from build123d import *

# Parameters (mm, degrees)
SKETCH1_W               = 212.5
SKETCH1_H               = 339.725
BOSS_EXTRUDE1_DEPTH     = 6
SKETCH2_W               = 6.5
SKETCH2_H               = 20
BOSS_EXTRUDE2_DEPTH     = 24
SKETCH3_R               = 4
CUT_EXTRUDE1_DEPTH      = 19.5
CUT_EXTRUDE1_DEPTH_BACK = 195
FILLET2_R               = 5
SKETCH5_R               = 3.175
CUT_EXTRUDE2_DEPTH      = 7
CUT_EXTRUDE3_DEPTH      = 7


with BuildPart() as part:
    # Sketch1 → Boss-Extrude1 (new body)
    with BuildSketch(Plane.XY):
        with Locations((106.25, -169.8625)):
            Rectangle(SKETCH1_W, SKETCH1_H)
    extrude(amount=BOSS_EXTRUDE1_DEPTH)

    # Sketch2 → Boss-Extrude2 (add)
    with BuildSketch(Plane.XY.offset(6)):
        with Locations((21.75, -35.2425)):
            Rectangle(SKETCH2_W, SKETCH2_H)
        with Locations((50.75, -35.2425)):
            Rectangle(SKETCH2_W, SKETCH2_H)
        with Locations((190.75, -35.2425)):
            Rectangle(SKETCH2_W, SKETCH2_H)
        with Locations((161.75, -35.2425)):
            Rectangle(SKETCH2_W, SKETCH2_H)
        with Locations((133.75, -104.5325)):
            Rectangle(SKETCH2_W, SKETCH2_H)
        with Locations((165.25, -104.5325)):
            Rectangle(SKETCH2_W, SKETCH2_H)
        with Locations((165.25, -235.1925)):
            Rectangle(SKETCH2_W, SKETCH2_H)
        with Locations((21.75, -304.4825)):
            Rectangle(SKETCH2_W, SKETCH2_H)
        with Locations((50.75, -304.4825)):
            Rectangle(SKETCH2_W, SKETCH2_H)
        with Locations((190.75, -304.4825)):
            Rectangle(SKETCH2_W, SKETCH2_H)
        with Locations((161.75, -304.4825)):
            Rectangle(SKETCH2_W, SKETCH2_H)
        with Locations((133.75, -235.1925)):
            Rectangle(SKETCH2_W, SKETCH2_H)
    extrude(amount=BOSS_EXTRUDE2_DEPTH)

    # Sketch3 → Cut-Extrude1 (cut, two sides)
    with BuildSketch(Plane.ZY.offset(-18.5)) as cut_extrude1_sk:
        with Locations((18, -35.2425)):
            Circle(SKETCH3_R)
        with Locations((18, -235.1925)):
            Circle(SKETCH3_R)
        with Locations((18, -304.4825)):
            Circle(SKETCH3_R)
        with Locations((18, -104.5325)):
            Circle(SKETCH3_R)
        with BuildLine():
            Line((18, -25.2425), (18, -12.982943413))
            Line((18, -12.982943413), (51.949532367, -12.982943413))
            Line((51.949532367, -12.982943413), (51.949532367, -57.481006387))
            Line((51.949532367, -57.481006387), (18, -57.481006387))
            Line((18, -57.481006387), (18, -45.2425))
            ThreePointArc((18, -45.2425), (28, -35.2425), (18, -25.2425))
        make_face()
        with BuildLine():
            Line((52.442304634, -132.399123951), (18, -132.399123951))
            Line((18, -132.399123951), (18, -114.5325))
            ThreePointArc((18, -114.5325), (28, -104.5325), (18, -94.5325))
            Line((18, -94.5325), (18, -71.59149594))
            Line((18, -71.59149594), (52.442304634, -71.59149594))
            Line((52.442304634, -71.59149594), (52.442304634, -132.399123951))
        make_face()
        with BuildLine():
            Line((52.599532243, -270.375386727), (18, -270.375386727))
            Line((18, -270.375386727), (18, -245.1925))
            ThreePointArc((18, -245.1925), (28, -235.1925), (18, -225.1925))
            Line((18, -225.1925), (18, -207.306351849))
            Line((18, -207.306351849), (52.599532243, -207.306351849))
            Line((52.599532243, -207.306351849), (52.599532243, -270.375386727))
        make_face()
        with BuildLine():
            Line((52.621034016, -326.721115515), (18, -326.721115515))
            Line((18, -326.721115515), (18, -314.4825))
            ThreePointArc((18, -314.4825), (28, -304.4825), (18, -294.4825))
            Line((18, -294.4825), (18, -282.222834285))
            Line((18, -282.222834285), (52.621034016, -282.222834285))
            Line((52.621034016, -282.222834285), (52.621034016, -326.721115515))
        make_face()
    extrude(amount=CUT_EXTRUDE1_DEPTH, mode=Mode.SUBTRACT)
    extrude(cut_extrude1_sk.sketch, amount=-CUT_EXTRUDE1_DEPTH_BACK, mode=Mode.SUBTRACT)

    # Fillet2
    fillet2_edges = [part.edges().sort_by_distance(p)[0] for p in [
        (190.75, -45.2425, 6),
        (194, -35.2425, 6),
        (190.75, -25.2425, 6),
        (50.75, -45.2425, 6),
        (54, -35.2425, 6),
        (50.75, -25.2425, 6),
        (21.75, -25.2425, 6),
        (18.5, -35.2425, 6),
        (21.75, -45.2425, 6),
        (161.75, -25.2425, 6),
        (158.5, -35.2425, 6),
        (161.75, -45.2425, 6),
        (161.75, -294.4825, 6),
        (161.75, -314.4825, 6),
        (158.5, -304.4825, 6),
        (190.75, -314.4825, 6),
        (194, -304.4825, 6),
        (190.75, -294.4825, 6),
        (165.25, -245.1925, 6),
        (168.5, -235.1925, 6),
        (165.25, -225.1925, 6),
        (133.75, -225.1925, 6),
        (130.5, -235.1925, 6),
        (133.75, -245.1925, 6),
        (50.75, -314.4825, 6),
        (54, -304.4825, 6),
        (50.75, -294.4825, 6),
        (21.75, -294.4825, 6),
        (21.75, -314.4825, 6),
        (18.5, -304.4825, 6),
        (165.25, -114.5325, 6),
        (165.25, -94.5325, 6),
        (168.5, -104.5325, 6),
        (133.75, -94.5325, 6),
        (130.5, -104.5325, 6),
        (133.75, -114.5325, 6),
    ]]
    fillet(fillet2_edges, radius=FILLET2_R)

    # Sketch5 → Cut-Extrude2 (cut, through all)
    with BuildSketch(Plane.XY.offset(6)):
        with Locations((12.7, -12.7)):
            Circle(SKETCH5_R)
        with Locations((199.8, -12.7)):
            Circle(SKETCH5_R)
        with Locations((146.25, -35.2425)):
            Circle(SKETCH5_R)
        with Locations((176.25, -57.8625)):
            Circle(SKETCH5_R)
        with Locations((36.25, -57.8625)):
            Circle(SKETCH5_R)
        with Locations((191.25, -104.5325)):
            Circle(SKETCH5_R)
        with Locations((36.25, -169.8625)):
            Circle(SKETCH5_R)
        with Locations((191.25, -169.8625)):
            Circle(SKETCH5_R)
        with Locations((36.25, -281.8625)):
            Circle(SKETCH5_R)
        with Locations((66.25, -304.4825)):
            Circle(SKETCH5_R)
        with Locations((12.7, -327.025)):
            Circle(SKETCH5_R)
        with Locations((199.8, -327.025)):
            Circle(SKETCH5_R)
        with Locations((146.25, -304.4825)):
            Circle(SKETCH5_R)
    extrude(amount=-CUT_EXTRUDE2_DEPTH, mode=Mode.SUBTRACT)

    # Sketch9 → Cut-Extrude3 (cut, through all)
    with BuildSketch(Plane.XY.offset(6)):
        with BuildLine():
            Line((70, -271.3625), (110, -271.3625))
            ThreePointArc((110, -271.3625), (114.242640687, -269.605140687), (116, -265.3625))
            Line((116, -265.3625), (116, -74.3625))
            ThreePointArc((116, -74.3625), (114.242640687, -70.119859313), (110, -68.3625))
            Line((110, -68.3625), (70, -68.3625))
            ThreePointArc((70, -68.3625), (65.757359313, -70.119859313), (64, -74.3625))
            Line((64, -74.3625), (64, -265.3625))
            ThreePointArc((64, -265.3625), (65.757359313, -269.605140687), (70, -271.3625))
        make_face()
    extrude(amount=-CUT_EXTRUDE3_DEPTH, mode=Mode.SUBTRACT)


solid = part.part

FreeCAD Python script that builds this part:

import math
import FreeCAD as App
import Part
import Sketcher
from FreeCAD import Vector
Q = App.Units.Quantity


def edges_at(feature, points):
    """Names of the edges that pass closest to the given points."""
    edges = feature.Shape.Edges
    near = lambda p: min(range(len(edges)), key=lambda i: edges[i].distToShape(Part.Vertex(*p))[0])
    return sorted({f"Edge{near(p) + 1}" for p in points})

doc = App.newDocument("Part")
body = doc.addObject("PartDesign::Body", "Body")

# Sketch on XY plane
sketch1 = body.newObject("Sketcher::SketchObject", "Sketch")
sketch1.AttachmentSupport = (doc.getObject("XY_Plane"), [""])
sketch1.MapMode = "FlatFace"
sketch1.addGeometry(Part.LineSegment(Vector(0, 0, 0), Vector(0, -340, 0)), False)
sketch1.addGeometry(Part.LineSegment(Vector(0, -340, 0), Vector(212, -340, 0)), False)
sketch1.addGeometry(Part.LineSegment(Vector(212, -340, 0), Vector(212, 0, 0)), False)
sketch1.addGeometry(Part.LineSegment(Vector(212, 0, 0), Vector(0, 0, 0)), False)
sketch1.addConstraint(Sketcher.Constraint("Coincident", 0, 2, 1, 1))
sketch1.addConstraint(Sketcher.Constraint("Coincident", 1, 2, 2, 1))
sketch1.addConstraint(Sketcher.Constraint("Coincident", 2, 2, 3, 1))
sketch1.addConstraint(Sketcher.Constraint("Coincident", 3, 2, 0, 1))
sketch1.addConstraint(Sketcher.Constraint("Vertical", 0))
sketch1.addConstraint(Sketcher.Constraint("Horizontal", 1))
sketch1.addConstraint(Sketcher.Constraint("Vertical", 2))
sketch1.addConstraint(Sketcher.Constraint("Horizontal", 3))
sketch1.addConstraint(Sketcher.Constraint("Coincident", 3, 2, -1, 1))
sketch1.addConstraint(Sketcher.Constraint("DistanceX", 1, 1, 1, 2, Q("212.5 mm")))
sketch1.addConstraint(Sketcher.Constraint("DistanceY", 0, 2, 0, 1, Q("339.725 mm")))
pad1 = body.newObject("PartDesign::Pad", "Pad")
pad1.Profile = sketch1
pad1.Length = 6

# Sketch on XY plane
sketch2 = body.newObject("Sketcher::SketchObject", "Sketch001")
sketch2.AttachmentSupport = (doc.getObject("XY_Plane"), [""])
sketch2.MapMode = "FlatFace"
sketch2.AttachmentOffset = App.Placement(Vector(0, 0, 6), App.Rotation())
sketch2.addGeometry(Part.LineSegment(Vector(18, -25, 0), Vector(18, -45, 0)), False)
sketch2.addGeometry(Part.LineSegment(Vector(18, -45, 0), Vector(25, -45, 0)), False)
sketch2.addGeometry(Part.LineSegment(Vector(25, -45, 0), Vector(25, -25, 0)), False)
sketch2.addGeometry(Part.LineSegment(Vector(25, -25, 0), Vector(18, -25, 0)), False)
sketch2.addGeometry(Part.LineSegment(Vector(48, -25, 0), Vector(48, -45, 0)), False)
sketch2.addGeometry(Part.LineSegment(Vector(48, -45, 0), Vector(54, -45, 0)), False)
sketch2.addGeometry(Part.LineSegment(Vector(54, -45, 0), Vector(54, -25, 0)), False)
sketch2.addGeometry(Part.LineSegment(Vector(54, -25, 0), Vector(48, -25, 0)), False)
sketch2.addGeometry(Part.LineSegment(Vector(188, -25, 0), Vector(188, -45, 0)), False)
sketch2.addGeometry(Part.LineSegment(Vector(188, -45, 0), Vector(194, -45, 0)), False)
sketch2.addGeometry(Part.LineSegment(Vector(194, -45, 0), Vector(194, -25, 0)), False)
sketch2.addGeometry(Part.LineSegment(Vector(194, -25, 0), Vector(188, -25, 0)), False)
sketch2.addGeometry(Part.LineSegment(Vector(158, -25, 0), Vector(158, -45, 0)), False)
sketch2.addGeometry(Part.LineSegment(Vector(158, -45, 0), Vector(165, -45, 0)), False)
sketch2.addGeometry(Part.LineSegment(Vector(165, -45, 0), Vector(165, -25, 0)), False)
sketch2.addGeometry(Part.LineSegment(Vector(165, -25, 0), Vector(158, -25, 0)), False)
sketch2.addGeometry(Part.LineSegment(Vector(130, -95, 0), Vector(130, -115, 0)), False)
sketch2.addGeometry(Part.LineSegment(Vector(130, -115, 0), Vector(137, -115, 0)), False)
sketch2.addGeometry(Part.LineSegment(Vector(137, -115, 0), Vector(137, -95, 0)), False)
sketch2.addGeometry(Part.LineSegment(Vector(137, -95, 0), Vector(130, -95, 0)), False)
sketch2.addGeometry(Part.LineSegment(Vector(162, -95, 0), Vector(162, -115, 0)), False)
sketch2.addGeometry(Part.LineSegment(Vector(162, -115, 0), Vector(168, -115, 0)), False)
sketch2.addGeometry(Part.LineSegment(Vector(168, -115, 0), Vector(168, -95, 0)), False)
sketch2.addGeometry(Part.LineSegment(Vector(168, -95, 0), Vector(162, -95, 0)), False)
sketch2.addGeometry(Part.LineSegment(Vector(162, -225, 0), Vector(162, -245, 0)), False)
sketch2.addGeometry(Part.LineSegment(Vector(162, -245, 0), Vector(168, -245, 0)), False)
sketch2.addGeometry(Part.LineSegment(Vector(168, -245, 0), Vector(168, -225, 0)), False)
sketch2.addGeometry(Part.LineSegment(Vector(168, -225, 0), Vector(162, -225, 0)), False)
sketch2.addGeometry(Part.LineSegment(Vector(18, -294, 0), Vector(18, -314, 0)), False)
sketch2.addGeometry(Part.LineSegment(Vector(18, -314, 0), Vector(25, -314, 0)), False)
sketch2.addGeometry(Part.LineSegment(Vector(25, -314, 0), Vector(25, -294, 0)), False)
sketch2.addGeometry(Part.LineSegment(Vector(25, -294, 0), Vector(18, -294, 0)), False)
sketch2.addGeometry(Part.LineSegment(Vector(48, -294, 0), Vector(48, -314, 0)), False)
sketch2.addGeometry(Part.LineSegment(Vector(48, -314, 0), Vector(54, -314, 0)), False)
sketch2.addGeometry(Part.LineSegment(Vector(54, -314, 0), Vector(54, -294, 0)), False)
sketch2.addGeometry(Part.LineSegment(Vector(54, -294, 0), Vector(48, -294, 0)), False)
sketch2.addGeometry(Part.LineSegment(Vector(188, -294, 0), Vector(188, -314, 0)), False)
sketch2.addGeometry(Part.LineSegment(Vector(188, -314, 0), Vector(194, -314, 0)), False)
sketch2.addGeometry(Part.LineSegment(Vector(194, -314, 0), Vector(194, -294, 0)), False)
sketch2.addGeometry(Part.LineSegment(Vector(194, -294, 0), Vector(188, -294, 0)), False)
sketch2.addGeometry(Part.LineSegment(Vector(158, -294, 0), Vector(158, -314, 0)), False)
sketch2.addGeometry(Part.LineSegment(Vector(158, -314, 0), Vector(165, -314, 0)), False)
sketch2.addGeometry(Part.LineSegment(Vector(165, -314, 0), Vector(165, -294, 0)), False)
sketch2.addGeometry(Part.LineSegment(Vector(165, -294, 0), Vector(158, -294, 0)), False)
sketch2.addGeometry(Part.LineSegment(Vector(130, -225, 0), Vector(130, -245, 0)), False)
sketch2.addGeometry(Part.LineSegment(Vector(130, -245, 0), Vector(137, -245, 0)), False)
sketch2.addGeometry(Part.LineSegment(Vector(137, -245, 0), Vector(137, -225, 0)), False)
sketch2.addGeometry(Part.LineSegment(Vector(137, -225, 0), Vector(130, -225, 0)), False)
sketch2.addConstraint(Sketcher.Constraint("Coincident", 0, 2, 1, 1))
sketch2.addConstraint(Sketcher.Constraint("Coincident", 1, 2, 2, 1))
sketch2.addConstraint(Sketcher.Constraint("Coincident", 2, 2, 3, 1))
sketch2.addConstraint(Sketcher.Constraint("Coincident", 3, 2, 0, 1))
sketch2.addConstraint(Sketcher.Constraint("Coincident", 4, 2, 5, 1))
sketch2.addConstraint(Sketcher.Constraint("Coincident", 5, 2, 6, 1))
sketch2.addConstraint(Sketcher.Constraint("Coincident", 6, 2, 7, 1))
sketch2.addConstraint(Sketcher.Constraint("Coincident", 7, 2, 4, 1))
sketch2.addConstraint(Sketcher.Constraint("Coincident", 8, 2, 9, 1))
sketch2.addConstraint(Sketcher.Constraint("Coincident", 9, 2, 10, 1))
sketch2.addConstraint(Sketcher.Constraint("Coincident", 10, 2, 11, 1))
sketch2.addConstraint(Sketcher.Constraint("Coincident", 11, 2, 8, 1))
sketch2.addConstraint(Sketcher.Constraint("Coincident", 12, 2, 13, 1))
sketch2.addConstraint(Sketcher.Constraint("Coincident", 13, 2, 14, 1))
sketch2.addConstraint(Sketcher.Constraint("Coincident", 14, 2, 15, 1))
sketch2.addConstraint(Sketcher.Constraint("Coincident", 15, 2, 12, 1))
sketch2.addConstraint(Sketcher.Constraint("Coincident", 16, 2, 17, 1))
sketch2.addConstraint(Sketcher.Constraint("Coincident", 17, 2, 18, 1))
sketch2.addConstraint(Sketcher.Constraint("Coincident", 18, 2, 19, 1))
sketch2.addConstraint(Sketcher.Constraint("Coincident", 19, 2, 16, 1))
sketch2.addConstraint(Sketcher.Constraint("Coincident", 20, 2, 21, 1))
sketch2.addConstraint(Sketcher.Constraint("Coincident", 21, 2, 22, 1))
sketch2.addConstraint(Sketcher.Constraint("Coincident", 22, 2, 23, 1))
sketch2.addConstraint(Sketcher.Constraint("Coincident", 23, 2, 20, 1))
sketch2.addConstraint(Sketcher.Constraint("Coincident", 24, 2, 25, 1))
sketch2.addConstraint(Sketcher.Constraint("Coincident", 25, 2, 26, 1))
sketch2.addConstraint(Sketcher.Constraint("Coincident", 26, 2, 27, 1))
sketch2.addConstraint(Sketcher.Constraint("Coincident", 27, 2, 24, 1))
sketch2.addConstraint(Sketcher.Constraint("Coincident", 28, 2, 29, 1))
sketch2.addConstraint(Sketcher.Constraint("Coincident", 29, 2, 30, 1))
sketch2.addConstraint(Sketcher.Constraint("Coincident", 30, 2, 31, 1))
sketch2.addConstraint(Sketcher.Constraint("Coincident", 31, 2, 28, 1))
sketch2.addConstraint(Sketcher.Constraint("Coincident", 32, 2, 33, 1))
sketch2.addConstraint(Sketcher.Constraint("Coincident", 33, 2, 34, 1))
sketch2.addConstraint(Sketcher.Constraint("Coincident", 34, 2, 35, 1))
sketch2.addConstraint(Sketcher.Constraint("Coincident", 35, 2, 32, 1))
sketch2.addConstraint(Sketcher.Constraint("Coincident", 36, 2, 37, 1))
sketch2.addConstraint(Sketcher.Constraint("Coincident", 37, 2, 38, 1))
sketch2.addConstraint(Sketcher.Constraint("Coincident", 38, 2, 39, 1))
sketch2.addConstraint(Sketcher.Constraint("Coincident", 39, 2, 36, 1))
sketch2.addConstraint(Sketcher.Constraint("Coincident", 40, 2, 41, 1))
sketch2.addConstraint(Sketcher.Constraint("Coincident", 41, 2, 42, 1))
sketch2.addConstraint(Sketcher.Constraint("Coincident", 42, 2, 43, 1))
sketch2.addConstraint(Sketcher.Constraint("Coincident", 43, 2, 40, 1))
sketch2.addConstraint(Sketcher.Constraint("Coincident", 44, 2, 45, 1))
sketch2.addConstraint(Sketcher.Constraint("Coincident", 45, 2, 46, 1))
sketch2.addConstraint(Sketcher.Constraint("Coincident", 46, 2, 47, 1))
sketch2.addConstraint(Sketcher.Constraint("Coincident", 47, 2, 44, 1))
sketch2.addConstraint(Sketcher.Constraint("Vertical", 0))
sketch2.addConstraint(Sketcher.Constraint("Horizontal", 1))
sketch2.addConstraint(Sketcher.Constraint("Vertical", 2))
sketch2.addConstraint(Sketcher.Constraint("Horizontal", 3))
sketch2.addConstraint(Sketcher.Constraint("Vertical", 4))
sketch2.addConstraint(Sketcher.Constraint("Horizontal", 5))
sketch2.addConstraint(Sketcher.Constraint("Vertical", 6))
sketch2.addConstraint(Sketcher.Constraint("Horizontal", 7))
sketch2.addConstraint(Sketcher.Constraint("Vertical", 8))
sketch2.addConstraint(Sketcher.Constraint("Horizontal", 9))
sketch2.addConstraint(Sketcher.Constraint("Vertical", 10))
sketch2.addConstraint(Sketcher.Constraint("Horizontal", 11))
sketch2.addConstraint(Sketcher.Constraint("Vertical", 12))
sketch2.addConstraint(Sketcher.Constraint("Horizontal", 13))
sketch2.addConstraint(Sketcher.Constraint("Vertical", 14))
sketch2.addConstraint(Sketcher.Constraint("Horizontal", 15))
sketch2.addConstraint(Sketcher.Constraint("Vertical", 16))
sketch2.addConstraint(Sketcher.Constraint("Horizontal", 17))
sketch2.addConstraint(Sketcher.Constraint("Vertical", 18))
sketch2.addConstraint(Sketcher.Constraint("Horizontal", 19))
sketch2.addConstraint(Sketcher.Constraint("Vertical", 20))
sketch2.addConstraint(Sketcher.Constraint("Horizontal", 21))
sketch2.addConstraint(Sketcher.Constraint("Vertical", 22))
sketch2.addConstraint(Sketcher.Constraint("Horizontal", 23))
sketch2.addConstraint(Sketcher.Constraint("Vertical", 24))
sketch2.addConstraint(Sketcher.Constraint("Horizontal", 25))
sketch2.addConstraint(Sketcher.Constraint("Vertical", 26))
sketch2.addConstraint(Sketcher.Constraint("Horizontal", 27))
sketch2.addConstraint(Sketcher.Constraint("Vertical", 28))
sketch2.addConstraint(Sketcher.Constraint("Horizontal", 29))
sketch2.addConstraint(Sketcher.Constraint("Vertical", 30))
sketch2.addConstraint(Sketcher.Constraint("Horizontal", 31))
sketch2.addConstraint(Sketcher.Constraint("Vertical", 32))
sketch2.addConstraint(Sketcher.Constraint("Horizontal", 33))
sketch2.addConstraint(Sketcher.Constraint("Vertical", 34))
sketch2.addConstraint(Sketcher.Constraint("Horizontal", 35))
sketch2.addConstraint(Sketcher.Constraint("Vertical", 36))
sketch2.addConstraint(Sketcher.Constraint("Horizontal", 37))
sketch2.addConstraint(Sketcher.Constraint("Vertical", 38))
sketch2.addConstraint(Sketcher.Constraint("Horizontal", 39))
sketch2.addConstraint(Sketcher.Constraint("Vertical", 40))
sketch2.addConstraint(Sketcher.Constraint("Horizontal", 41))
sketch2.addConstraint(Sketcher.Constraint("Vertical", 42))
sketch2.addConstraint(Sketcher.Constraint("Horizontal", 43))
sketch2.addConstraint(Sketcher.Constraint("Vertical", 44))
sketch2.addConstraint(Sketcher.Constraint("Horizontal", 45))
sketch2.addConstraint(Sketcher.Constraint("Vertical", 46))
sketch2.addConstraint(Sketcher.Constraint("Horizontal", 47))
sketch2.addConstraint(Sketcher.Constraint("Horizontal", 1, 2, 4, 2))
sketch2.addConstraint(Sketcher.Constraint("Horizontal", 3, 2, 6, 2))
sketch2.addConstraint(Sketcher.Constraint("Horizontal", 5, 2, 8, 2))
sketch2.addConstraint(Sketcher.Constraint("Horizontal", 7, 2, 10, 2))
sketch2.addConstraint(Sketcher.Constraint("Horizontal", 9, 2, 12, 2))
sketch2.addConstraint(Sketcher.Constraint("Horizontal", 11, 2, 14, 2))
sketch2.addConstraint(Sketcher.Constraint("Horizontal", 17, 2, 20, 2))
sketch2.addConstraint(Sketcher.Constraint("Horizontal", 19, 2, 22, 2))
sketch2.addConstraint(Sketcher.Constraint("Horizontal", 29, 2, 32, 2))
sketch2.addConstraint(Sketcher.Constraint("Horizontal", 31, 2, 34, 2))
sketch2.addConstraint(Sketcher.Constraint("Horizontal", 33, 2, 36, 2))
sketch2.addConstraint(Sketcher.Constraint("Horizontal", 35, 2, 38, 2))
sketch2.addConstraint(Sketcher.Constraint("Horizontal", 37, 2, 40, 2))
sketch2.addConstraint(Sketcher.Constraint("Horizontal", 39, 2, 42, 2))
sketch2.addConstraint(Sketcher.Constraint("Horizontal", 25, 2, 44, 2))
sketch2.addConstraint(Sketcher.Constraint("Horizontal", 27, 2, 46, 2))
sketch2.addConstraint(Sketcher.Constraint("Vertical", 23, 2, 24, 2))
sketch2.addConstraint(Sketcher.Constraint("Vertical", 22, 2, 25, 2))
sketch2.addConstraint(Sketcher.Constraint("Vertical", 3, 2, 28, 2))
sketch2.addConstraint(Sketcher.Constraint("Vertical", 2, 2, 29, 2))
sketch2.addConstraint(Sketcher.Constraint("Vertical", 7, 2, 32, 2))
sketch2.addConstraint(Sketcher.Constraint("Vertical", 6, 2, 33, 2))
sketch2.addConstraint(Sketcher.Constraint("Vertical", 11, 2, 36, 2))
sketch2.addConstraint(Sketcher.Constraint("Vertical", 10, 2, 37, 2))
sketch2.addConstraint(Sketcher.Constraint("Vertical", 15, 2, 40, 2))
sketch2.addConstraint(Sketcher.Constraint("Vertical", 14, 2, 41, 2))
sketch2.addConstraint(Sketcher.Constraint("Vertical", 19, 2, 44, 2))
sketch2.addConstraint(Sketcher.Constraint("Vertical", 18, 2, 45, 2))
sketch2.addConstraint(Sketcher.Constraint("Equal", 3, 5))
sketch2.addConstraint(Sketcher.Constraint("Equal", 7, 9))
sketch2.addConstraint(Sketcher.Constraint("Equal", 11, 13))
sketch2.addConstraint(Sketcher.Constraint("Equal", 15, 17))
sketch2.addConstraint(Sketcher.Constraint("Equal", 19, 21))
sketch2.addConstraint(Sketcher.Constraint("Equal", 14, 16))
sketch2.addConstraint(Sketcher.Constraint("Equal", 22, 24))
sketch2.addConstraint(Sketcher.Constraint("Equal", 26, 28))
sketch2.addConstraint(Sketcher.Constraint("DistanceY", 0, 2, 0, 1, Q("20 mm")))
sketch2.addConstraint(Sketcher.Constraint("DistanceX", 1, 1, 1, 2, Q("6.5 mm")))
sketch2.addConstraint(Sketcher.Constraint("DistanceX", -1, 1, 1, 2, Q("25 mm")))
sketch2.addConstraint(Sketcher.Constraint("DistanceX", -1, 1, 5, 2, Q("54 mm")))
sketch2.addConstraint(Sketcher.Constraint("DistanceX", -1, 1, 9, 2, Q("194 mm")))
sketch2.addConstraint(Sketcher.Constraint("DistanceX", -1, 1, 13, 2, Q("165 mm")))
sketch2.addConstraint(Sketcher.Constraint("DistanceX", -1, 1, 17, 2, Q("137 mm")))
sketch2.addConstraint(Sketcher.Constraint("DistanceX", -1, 1, 20, 2, Q("162 mm")))
sketch2.addConstraint(Sketcher.Constraint("DistanceY", 16, 2, 12, 2, Q("69.29 mm")))
sketch2.addConstraint(Sketcher.Constraint("DistanceY", 24, 2, 20, 2, Q("130.66 mm")))
sketch2.addConstraint(Sketcher.Constraint("DistanceY", 28, 2, 24, 2, Q("69.29 mm")))
sketch2.addConstraint(Sketcher.Constraint("DistanceY", 0, 2, -1, 1, Q("45.2425 mm")))
pad2 = body.newObject("PartDesign::Pad", "Pad001")
pad2.Profile = sketch2
pad2.Length = 24

# Sketch on YZ plane
sketch3 = body.newObject("Sketcher::SketchObject", "Sketch002")
sketch3.AttachmentSupport = (doc.getObject("YZ_Plane"), [""])
sketch3.MapMode = "FlatFace"
sketch3.AttachmentOffset = App.Placement(Vector(0, 0, 18.5), App.Rotation())
sketch3.addGeometry(Part.Circle(Vector(-35.2, 18, 0), Vector(0, 0, 1), 4), False)
sketch3.addGeometry(Part.Circle(Vector(-235.2, 18, 0), Vector(0, 0, 1), 4), False)
sketch3.addGeometry(Part.Circle(Vector(-304.5, 18, 0), Vector(0, 0, 1), 4), False)
sketch3.addGeometry(Part.Circle(Vector(-104.5, 18, 0), Vector(0, 0, 1), 4), False)
sketch3.addGeometry(Part.LineSegment(Vector(-13, 18, 0), Vector(-25.2, 18, 0)), False)
sketch3.addGeometry(Part.ArcOfCircle(Part.Circle(Vector(-35.2, 18, 0), Vector(0, 0, 1), 10), math.radians(0), math.radians(180)), False)
sketch3.addGeometry(Part.LineSegment(Vector(-45.2, 18, 0), Vector(-57.5, 18, 0)), False)
sketch3.addGeometry(Part.LineSegment(Vector(-57.5, 18, 0), Vector(-57.5, 51.9, 0)), False)
sketch3.addGeometry(Part.LineSegment(Vector(-57.5, 51.9, 0), Vector(-13, 51.9, 0)), False)
sketch3.addGeometry(Part.LineSegment(Vector(-13, 51.9, 0), Vector(-13, 18, 0)), False)
sketch3.addGeometry(Part.LineSegment(Vector(-132.4, 18, 0), Vector(-132.4, 52.4, 0)), False)
sketch3.addGeometry(Part.LineSegment(Vector(-132.4, 52.4, 0), Vector(-71.6, 52.4, 0)), False)
sketch3.addGeometry(Part.LineSegment(Vector(-71.6, 52.4, 0), Vector(-71.6, 18, 0)), False)
sketch3.addGeometry(Part.LineSegment(Vector(-71.6, 18, 0), Vector(-94.5, 18, 0)), False)
sketch3.addGeometry(Part.ArcOfCircle(Part.Circle(Vector(-104.5, 18, 0), Vector(0, 0, 1), 10), math.radians(0), math.radians(180)), False)
sketch3.addGeometry(Part.LineSegment(Vector(-114.5, 18, 0), Vector(-132.4, 18, 0)), False)
sketch3.addGeometry(Part.LineSegment(Vector(-270.4, 18, 0), Vector(-270.4, 52.6, 0)), False)
sketch3.addGeometry(Part.LineSegment(Vector(-270.4, 52.6, 0), Vector(-207.3, 52.6, 0)), False)
sketch3.addGeometry(Part.LineSegment(Vector(-207.3, 52.6, 0), Vector(-207.3, 18, 0)), False)
sketch3.addGeometry(Part.LineSegment(Vector(-207.3, 18, 0), Vector(-225.2, 18, 0)), False)
sketch3.addGeometry(Part.ArcOfCircle(Part.Circle(Vector(-235.2, 18, 0), Vector(0, 0, 1), 10), math.radians(0), math.radians(180)), False)
sketch3.addGeometry(Part.LineSegment(Vector(-245.2, 18, 0), Vector(-270.4, 18, 0)), False)
sketch3.addGeometry(Part.LineSegment(Vector(-326.7, 18, 0), Vector(-326.7, 52.6, 0)), False)
sketch3.addGeometry(Part.LineSegment(Vector(-326.7, 52.6, 0), Vector(-282.2, 52.6, 0)), False)
sketch3.addGeometry(Part.LineSegment(Vector(-282.2, 52.6, 0), Vector(-282.2, 18, 0)), False)
sketch3.addGeometry(Part.LineSegment(Vector(-282.2, 18, 0), Vector(-294.5, 18, 0)), False)
sketch3.addGeometry(Part.ArcOfCircle(Part.Circle(Vector(-304.5, 18, 0), Vector(0, 0, 1), 10), math.radians(0), math.radians(180)), False)
sketch3.addGeometry(Part.LineSegment(Vector(-314.5, 18, 0), Vector(-326.7, 18, 0)), False)
sketch3.addConstraint(Sketcher.Constraint("Coincident", 4, 2, 5, 1))
sketch3.addConstraint(Sketcher.Constraint("Coincident", 5, 2, 6, 1))
sketch3.addConstraint(Sketcher.Constraint("Coincident", 6, 2, 7, 1))
sketch3.addConstraint(Sketcher.Constraint("Coincident", 7, 2, 8, 1))
sketch3.addConstraint(Sketcher.Constraint("Coincident", 8, 2, 9, 1))
sketch3.addConstraint(Sketcher.Constraint("Coincident", 9, 2, 4, 1))
sketch3.addConstraint(Sketcher.Constraint("Coincident", 10, 2, 11, 1))
sketch3.addConstraint(Sketcher.Constraint("Coincident", 11, 2, 12, 1))
sketch3.addConstraint(Sketcher.Constraint("Coincident", 12, 2, 13, 1))
sketch3.addConstraint(Sketcher.Constraint("Coincident", 13, 2, 14, 1))
sketch3.addConstraint(Sketcher.Constraint("Coincident", 14, 2, 15, 1))
sketch3.addConstraint(Sketcher.Constraint("Coincident", 15, 2, 10, 1))
sketch3.addConstraint(Sketcher.Constraint("Coincident", 16, 2, 17, 1))
sketch3.addConstraint(Sketcher.Constraint("Coincident", 17, 2, 18, 1))
sketch3.addConstraint(Sketcher.Constraint("Coincident", 18, 2, 19, 1))
sketch3.addConstraint(Sketcher.Constraint("Coincident", 19, 2, 20, 1))
sketch3.addConstraint(Sketcher.Constraint("Coincident", 20, 2, 21, 1))
sketch3.addConstraint(Sketcher.Constraint("Coincident", 21, 2, 16, 1))
sketch3.addConstraint(Sketcher.Constraint("Coincident", 22, 2, 23, 1))
sketch3.addConstraint(Sketcher.Constraint("Coincident", 23, 2, 24, 1))
sketch3.addConstraint(Sketcher.Constraint("Coincident", 24, 2, 25, 1))
sketch3.addConstraint(Sketcher.Constraint("Coincident", 25, 2, 26, 1))
sketch3.addConstraint(Sketcher.Constraint("Coincident", 26, 2, 27, 1))
sketch3.addConstraint(Sketcher.Constraint("Coincident", 27, 2, 22, 1))
sketch3.addConstraint(Sketcher.Constraint("Horizontal", 4))
sketch3.addConstraint(Sketcher.Constraint("Horizontal", 6))
sketch3.addConstraint(Sketcher.Constraint("Vertical", 7))
sketch3.addConstraint(Sketcher.Constraint("Horizontal", 8))
sketch3.addConstraint(Sketcher.Constraint("Vertical", 9))
sketch3.addConstraint(Sketcher.Constraint("Vertical", 10))
sketch3.addConstraint(Sketcher.Constraint("Horizontal", 11))
sketch3.addConstraint(Sketcher.Constraint("Vertical", 12))
sketch3.addConstraint(Sketcher.Constraint("Horizontal", 13))
sketch3.addConstraint(Sketcher.Constraint("Horizontal", 15))
sketch3.addConstraint(Sketcher.Constraint("Vertical", 16))
sketch3.addConstraint(Sketcher.Constraint("Horizontal", 17))
sketch3.addConstraint(Sketcher.Constraint("Vertical", 18))
sketch3.addConstraint(Sketcher.Constraint("Horizontal", 19))
sketch3.addConstraint(Sketcher.Constraint("Horizontal", 21))
sketch3.addConstraint(Sketcher.Constraint("Vertical", 22))
sketch3.addConstraint(Sketcher.Constraint("Horizontal", 23))
sketch3.addConstraint(Sketcher.Constraint("Vertical", 24))
sketch3.addConstraint(Sketcher.Constraint("Horizontal", 25))
sketch3.addConstraint(Sketcher.Constraint("Horizontal", 27))
sketch3.addConstraint(Sketcher.Constraint("Coincident", 5, 3, 0, 3))
sketch3.addConstraint(Sketcher.Constraint("Coincident", 14, 3, 3, 3))
sketch3.addConstraint(Sketcher.Constraint("Coincident", 20, 3, 1, 3))
sketch3.addConstraint(Sketcher.Constraint("Coincident", 26, 3, 2, 3))
sketch3.addConstraint(Sketcher.Constraint("Equal", 0, 1))
sketch3.addConstraint(Sketcher.Constraint("Equal", 1, 2))
sketch3.addConstraint(Sketcher.Constraint("Equal", 2, 3))
sketch3.addConstraint(Sketcher.Constraint("Equal", 5, 14))
sketch3.addConstraint(Sketcher.Constraint("Equal", 14, 20))
sketch3.addConstraint(Sketcher.Constraint("Equal", 20, 26))
sketch3.addConstraint(Sketcher.Constraint("Horizontal", 0, 3, 1, 3))
sketch3.addConstraint(Sketcher.Constraint("Horizontal", 1, 3, 2, 3))
sketch3.addConstraint(Sketcher.Constraint("Horizontal", 2, 3, 3, 3))
sketch3.addConstraint(Sketcher.Constraint("Horizontal", 26, 3, 4, 2))
sketch3.addConstraint(Sketcher.Constraint("Horizontal", 4, 2, 5, 2))
sketch3.addConstraint(Sketcher.Constraint("Horizontal", 9, 2, 12, 2))
sketch3.addConstraint(Sketcher.Constraint("Horizontal", 13, 2, 14, 2))
sketch3.addConstraint(Sketcher.Constraint("Horizontal", 15, 2, 18, 2))
sketch3.addConstraint(Sketcher.Constraint("Horizontal", 19, 2, 20, 2))
sketch3.addConstraint(Sketcher.Constraint("Horizontal", 21, 2, 24, 2))
sketch3.addConstraint(Sketcher.Constraint("Horizontal", 25, 2, 26, 2))
sketch3.addConstraint(Sketcher.Constraint("Diameter", 0, Q("8 mm")))
sketch3.addConstraint(Sketcher.Constraint("Radius", 5, Q("10 mm")))
sketch3.addConstraint(Sketcher.Constraint("DistanceY", -1, 1, 0, 3, Q("18 mm")))
sketch3.addConstraint(Sketcher.Constraint("DistanceX", 1, 3, 0, 3, Q("199.95 mm")))
sketch3.addConstraint(Sketcher.Constraint("DistanceX", 2, 3, 1, 3, Q("69.29 mm")))
sketch3.addConstraint(Sketcher.Constraint("DistanceX", 3, 3, 0, 3, Q("69.29 mm")))
sketch3.addConstraint(Sketcher.Constraint("DistanceX", 11, 1, 11, 2, Q("60.807628 mm")))
sketch3.addConstraint(Sketcher.Constraint("DistanceX", 19, 2, 19, 1, Q("17.886148 mm")))
sketch3.addConstraint(Sketcher.Constraint("DistanceX", 23, 1, 23, 2, Q("44.498281 mm")))
sketch3.addConstraint(Sketcher.Constraint("DistanceX", 0, 3, -1, 1, Q("35.2425 mm")))
sketch3.addConstraint(Sketcher.Constraint("DistanceY", 16, 2, 22, 2, Q("0.021502 mm")))
sketch3.addConstraint(Sketcher.Constraint("DistanceX", 4, 2, 4, 1, Q("12.259557 mm")))
sketch3.addConstraint(Sketcher.Constraint("DistanceX", 6, 2, 6, 1, Q("12.238506 mm")))
sketch3.addConstraint(Sketcher.Constraint("DistanceX", 13, 2, 13, 1, Q("22.941004 mm")))
sketch3.addConstraint(Sketcher.Constraint("DistanceX", 17, 1, 17, 2, Q("63.069035 mm")))
sketch3.addConstraint(Sketcher.Constraint("DistanceX", 25, 2, 25, 1, Q("12.259666 mm")))
sketch3.addConstraint(Sketcher.Constraint("DistanceY", 7, 1, 7, 2, Q("33.949532 mm")))
sketch3.addConstraint(Sketcher.Constraint("DistanceY", 10, 1, 10, 2, Q("34.442305 mm")))
sketch3.addConstraint(Sketcher.Constraint("DistanceY", 16, 1, 16, 2, Q("34.599532 mm")))
pocket1 = body.newObject("PartDesign::Pocket", "Pocket")
pocket1.Profile = sketch3
pocket1.Type = "ThroughAll"
pocket1.Midplane = True
doc.recompute()

fillet = body.newObject("PartDesign::Fillet", "Fillet")
fillet.Base = (pocket1, edges_at(pocket1, [
    (190.75, -45.242, 6),
    (194, -35.242, 6),
    (190.75, -25.242, 6),
    (50.75, -45.242, 6),
    (54, -35.242, 6),
    (50.75, -25.242, 6),
    (21.75, -25.242, 6),
    (18.5, -35.242, 6),
    (21.75, -45.242, 6),
    (161.75, -25.242, 6),
    (158.5, -35.242, 6),
    (161.75, -45.242, 6),
    (161.75, -294.483, 6),
    (161.75, -314.483, 6),
    (158.5, -304.483, 6),
    (190.75, -314.483, 6),
    (194, -304.483, 6),
    (190.75, -294.483, 6),
    (165.25, -245.192, 6),
    (168.5, -235.192, 6),
    (165.25, -225.192, 6),
    (133.75, -225.192, 6),
    (130.5, -235.192, 6),
    (133.75, -245.192, 6),
    (50.75, -314.483, 6),
    (54, -304.483, 6),
    (50.75, -294.483, 6),
    (21.75, -294.483, 6),
    (21.75, -314.483, 6),
    (18.5, -304.483, 6),
    (165.25, -114.532, 6),
    (165.25, -94.532, 6),
    (168.5, -104.532, 6),
    (133.75, -94.532, 6),
    (130.5, -104.532, 6),
    (133.75, -114.532, 6),
]))
fillet.Radius = 5

# Sketch on XY plane
sketch4 = body.newObject("Sketcher::SketchObject", "Sketch003")
sketch4.AttachmentSupport = (doc.getObject("XY_Plane"), [""])
sketch4.MapMode = "FlatFace"
sketch4.AttachmentOffset = App.Placement(Vector(0, 0, 6), App.Rotation())
sketch4.addGeometry(Part.Circle(Vector(12.7, -12.7, 0), Vector(0, 0, 1), 3.2), False)
sketch4.addGeometry(Part.Circle(Vector(199.8, -12.7, 0), Vector(0, 0, 1), 3.2), False)
sketch4.addGeometry(Part.Circle(Vector(146.2, -35.2, 0), Vector(0, 0, 1), 3.2), False)
sketch4.addGeometry(Part.Circle(Vector(176.2, -57.9, 0), Vector(0, 0, 1), 3.2), False)
sketch4.addGeometry(Part.Circle(Vector(36.2, -57.9, 0), Vector(0, 0, 1), 3.2), False)
sketch4.addGeometry(Part.Circle(Vector(191.2, -104.5, 0), Vector(0, 0, 1), 3.2), False)
sketch4.addGeometry(Part.Circle(Vector(36.2, -169.9, 0), Vector(0, 0, 1), 3.2), False)
sketch4.addGeometry(Part.Circle(Vector(191.2, -169.9, 0), Vector(0, 0, 1), 3.2), False)
sketch4.addGeometry(Part.Circle(Vector(36.2, -281.9, 0), Vector(0, 0, 1), 3.2), False)
sketch4.addGeometry(Part.Circle(Vector(66.2, -304.5, 0), Vector(0, 0, 1), 3.2), False)
sketch4.addGeometry(Part.Circle(Vector(12.7, -327, 0), Vector(0, 0, 1), 3.2), False)
sketch4.addGeometry(Part.Circle(Vector(199.8, -327, 0), Vector(0, 0, 1), 3.2), False)
sketch4.addGeometry(Part.Circle(Vector(146.2, -304.5, 0), Vector(0, 0, 1), 3.2), False)
sketch4.addConstraint(Sketcher.Constraint("Equal", 0, 1))
sketch4.addConstraint(Sketcher.Constraint("Equal", 1, 2))
sketch4.addConstraint(Sketcher.Constraint("Equal", 2, 3))
sketch4.addConstraint(Sketcher.Constraint("Equal", 3, 4))
sketch4.addConstraint(Sketcher.Constraint("Equal", 4, 5))
sketch4.addConstraint(Sketcher.Constraint("Equal", 5, 6))
sketch4.addConstraint(Sketcher.Constraint("Equal", 6, 7))
sketch4.addConstraint(Sketcher.Constraint("Equal", 7, 8))
sketch4.addConstraint(Sketcher.Constraint("Equal", 8, 9))
sketch4.addConstraint(Sketcher.Constraint("Equal", 9, 10))
sketch4.addConstraint(Sketcher.Constraint("Equal", 10, 11))
sketch4.addConstraint(Sketcher.Constraint("Equal", 11, 12))
sketch4.addConstraint(Sketcher.Constraint("Horizontal", 0, 3, 1, 3))
sketch4.addConstraint(Sketcher.Constraint("Horizontal", 3, 3, 4, 3))
sketch4.addConstraint(Sketcher.Constraint("Horizontal", 6, 3, 7, 3))
sketch4.addConstraint(Sketcher.Constraint("Horizontal", 10, 3, 11, 3))
sketch4.addConstraint(Sketcher.Constraint("Horizontal", 9, 3, 12, 3))
sketch4.addConstraint(Sketcher.Constraint("Vertical", 4, 3, 6, 3))
sketch4.addConstraint(Sketcher.Constraint("Vertical", 5, 3, 7, 3))
sketch4.addConstraint(Sketcher.Constraint("Vertical", 6, 3, 8, 3))
sketch4.addConstraint(Sketcher.Constraint("Vertical", 0, 3, 10, 3))
sketch4.addConstraint(Sketcher.Constraint("Vertical", 1, 3, 11, 3))
sketch4.addConstraint(Sketcher.Constraint("Vertical", 2, 3, 12, 3))
sketch4.addConstraint(Sketcher.Constraint("Diameter", 0, Q("6.35 mm")))
sketch4.addConstraint(Sketcher.Constraint("DistanceX", 2, 3, 3, 3, Q("30 mm")))
sketch4.addConstraint(Sketcher.Constraint("DistanceX", 4, 3, 2, 3, Q("110 mm")))
sketch4.addConstraint(Sketcher.Constraint("DistanceX", 3, 3, 5, 3, Q("15 mm")))
sketch4.addConstraint(Sketcher.Constraint("DistanceY", 6, 3, 4, 3, Q("112 mm")))
sketch4.addConstraint(Sketcher.Constraint("DistanceY", 8, 3, 6, 3, Q("112 mm")))
sketch4.addConstraint(Sketcher.Constraint("DistanceX", 8, 3, 9, 3, Q("30 mm")))
sketch4.addConstraint(Sketcher.Constraint("DistanceX", -1, 1, 0, 3, Q("12.7 mm")))
sketch4.addConstraint(Sketcher.Constraint("DistanceY", 0, 3, -1, 1, Q("12.7 mm")))
sketch4.addConstraint(Sketcher.Constraint("DistanceX", -1, 1, 1, 3, Q("199.8 mm")))
sketch4.addConstraint(Sketcher.Constraint("DistanceX", -1, 1, 2, 3, Q("146.25 mm")))
sketch4.addConstraint(Sketcher.Constraint("DistanceY", 3, 3, 2, 3, Q("22.62 mm")))
sketch4.addConstraint(Sketcher.Constraint("DistanceY", 5, 3, 3, 3, Q("46.67 mm")))
sketch4.addConstraint(Sketcher.Constraint("DistanceY", 9, 3, 8, 3, Q("22.62 mm")))
sketch4.addConstraint(Sketcher.Constraint("DistanceY", 10, 3, -1, 1, Q("327.025 mm")))
sketch4.addConstraint(Sketcher.Constraint("DistanceY", 2, 3, -1, 1, Q("35.2425 mm")))
pocket2 = body.newObject("PartDesign::Pocket", "Pocket001")
pocket2.Profile = sketch4
pocket2.Type = "ThroughAll"

# Sketch on XY plane
sketch5 = body.newObject("Sketcher::SketchObject", "Sketch004")
sketch5.AttachmentSupport = (doc.getObject("XY_Plane"), [""])
sketch5.MapMode = "FlatFace"
sketch5.AttachmentOffset = App.Placement(Vector(0, 0, 6), App.Rotation())
sketch5.addGeometry(Part.LineSegment(Vector(70, -271, 0), Vector(110, -271, 0)), False)
sketch5.addGeometry(Part.ArcOfCircle(Part.Circle(Vector(110, -265, 0), Vector(0, 0, 1), 6), math.radians(-90), math.radians(0)), False)
sketch5.addGeometry(Part.LineSegment(Vector(116, -265, 0), Vector(116, -74, 0)), False)
sketch5.addGeometry(Part.ArcOfCircle(Part.Circle(Vector(110, -74, 0), Vector(0, 0, 1), 6), math.radians(0), math.radians(90)), False)
sketch5.addGeometry(Part.LineSegment(Vector(110, -68, 0), Vector(70, -68, 0)), False)
sketch5.addGeometry(Part.ArcOfCircle(Part.Circle(Vector(70, -74, 0), Vector(0, 0, 1), 6), math.radians(90), math.radians(180)), False)
sketch5.addGeometry(Part.LineSegment(Vector(64, -74, 0), Vector(64, -265, 0)), False)
sketch5.addGeometry(Part.ArcOfCircle(Part.Circle(Vector(70, -265, 0), Vector(0, 0, 1), 6), math.radians(180), math.radians(270)), False)
sketch5.addConstraint(Sketcher.Constraint("Tangent", 0, 2, 1, 1))
sketch5.addConstraint(Sketcher.Constraint("Tangent", 1, 2, 2, 1))
sketch5.addConstraint(Sketcher.Constraint("Tangent", 2, 2, 3, 1))
sketch5.addConstraint(Sketcher.Constraint("Tangent", 3, 2, 4, 1))
sketch5.addConstraint(Sketcher.Constraint("Tangent", 4, 2, 5, 1))
sketch5.addConstraint(Sketcher.Constraint("Tangent", 5, 2, 6, 1))
sketch5.addConstraint(Sketcher.Constraint("Tangent", 6, 2, 7, 1))
sketch5.addConstraint(Sketcher.Constraint("Tangent", 7, 2, 0, 1))
sketch5.addConstraint(Sketcher.Constraint("Horizontal", 0))
sketch5.addConstraint(Sketcher.Constraint("Vertical", 2))
sketch5.addConstraint(Sketcher.Constraint("Horizontal", 4))
sketch5.addConstraint(Sketcher.Constraint("Vertical", 6))
sketch5.addConstraint(Sketcher.Constraint("Equal", 1, 3))
sketch5.addConstraint(Sketcher.Constraint("Equal", 3, 5))
sketch5.addConstraint(Sketcher.Constraint("Equal", 5, 7))
sketch5.addConstraint(Sketcher.Constraint("Radius", 1, Q("6 mm")))
sketch5.addConstraint(Sketcher.Constraint("DistanceX", 0, 1, 0, 2, Q("40 mm")))
sketch5.addConstraint(Sketcher.Constraint("DistanceY", 2, 1, 2, 2, Q("191 mm")))
sketch5.addConstraint(Sketcher.Constraint("DistanceX", -1, 1, 1, 3, Q("110 mm")))
sketch5.addConstraint(Sketcher.Constraint("DistanceY", 1, 3, -1, 1, Q("265.3625 mm")))
pocket3 = body.newObject("PartDesign::Pocket", "Pocket002")
pocket3.Profile = sketch5
pocket3.Type = "ThroughAll"

doc.recompute()
